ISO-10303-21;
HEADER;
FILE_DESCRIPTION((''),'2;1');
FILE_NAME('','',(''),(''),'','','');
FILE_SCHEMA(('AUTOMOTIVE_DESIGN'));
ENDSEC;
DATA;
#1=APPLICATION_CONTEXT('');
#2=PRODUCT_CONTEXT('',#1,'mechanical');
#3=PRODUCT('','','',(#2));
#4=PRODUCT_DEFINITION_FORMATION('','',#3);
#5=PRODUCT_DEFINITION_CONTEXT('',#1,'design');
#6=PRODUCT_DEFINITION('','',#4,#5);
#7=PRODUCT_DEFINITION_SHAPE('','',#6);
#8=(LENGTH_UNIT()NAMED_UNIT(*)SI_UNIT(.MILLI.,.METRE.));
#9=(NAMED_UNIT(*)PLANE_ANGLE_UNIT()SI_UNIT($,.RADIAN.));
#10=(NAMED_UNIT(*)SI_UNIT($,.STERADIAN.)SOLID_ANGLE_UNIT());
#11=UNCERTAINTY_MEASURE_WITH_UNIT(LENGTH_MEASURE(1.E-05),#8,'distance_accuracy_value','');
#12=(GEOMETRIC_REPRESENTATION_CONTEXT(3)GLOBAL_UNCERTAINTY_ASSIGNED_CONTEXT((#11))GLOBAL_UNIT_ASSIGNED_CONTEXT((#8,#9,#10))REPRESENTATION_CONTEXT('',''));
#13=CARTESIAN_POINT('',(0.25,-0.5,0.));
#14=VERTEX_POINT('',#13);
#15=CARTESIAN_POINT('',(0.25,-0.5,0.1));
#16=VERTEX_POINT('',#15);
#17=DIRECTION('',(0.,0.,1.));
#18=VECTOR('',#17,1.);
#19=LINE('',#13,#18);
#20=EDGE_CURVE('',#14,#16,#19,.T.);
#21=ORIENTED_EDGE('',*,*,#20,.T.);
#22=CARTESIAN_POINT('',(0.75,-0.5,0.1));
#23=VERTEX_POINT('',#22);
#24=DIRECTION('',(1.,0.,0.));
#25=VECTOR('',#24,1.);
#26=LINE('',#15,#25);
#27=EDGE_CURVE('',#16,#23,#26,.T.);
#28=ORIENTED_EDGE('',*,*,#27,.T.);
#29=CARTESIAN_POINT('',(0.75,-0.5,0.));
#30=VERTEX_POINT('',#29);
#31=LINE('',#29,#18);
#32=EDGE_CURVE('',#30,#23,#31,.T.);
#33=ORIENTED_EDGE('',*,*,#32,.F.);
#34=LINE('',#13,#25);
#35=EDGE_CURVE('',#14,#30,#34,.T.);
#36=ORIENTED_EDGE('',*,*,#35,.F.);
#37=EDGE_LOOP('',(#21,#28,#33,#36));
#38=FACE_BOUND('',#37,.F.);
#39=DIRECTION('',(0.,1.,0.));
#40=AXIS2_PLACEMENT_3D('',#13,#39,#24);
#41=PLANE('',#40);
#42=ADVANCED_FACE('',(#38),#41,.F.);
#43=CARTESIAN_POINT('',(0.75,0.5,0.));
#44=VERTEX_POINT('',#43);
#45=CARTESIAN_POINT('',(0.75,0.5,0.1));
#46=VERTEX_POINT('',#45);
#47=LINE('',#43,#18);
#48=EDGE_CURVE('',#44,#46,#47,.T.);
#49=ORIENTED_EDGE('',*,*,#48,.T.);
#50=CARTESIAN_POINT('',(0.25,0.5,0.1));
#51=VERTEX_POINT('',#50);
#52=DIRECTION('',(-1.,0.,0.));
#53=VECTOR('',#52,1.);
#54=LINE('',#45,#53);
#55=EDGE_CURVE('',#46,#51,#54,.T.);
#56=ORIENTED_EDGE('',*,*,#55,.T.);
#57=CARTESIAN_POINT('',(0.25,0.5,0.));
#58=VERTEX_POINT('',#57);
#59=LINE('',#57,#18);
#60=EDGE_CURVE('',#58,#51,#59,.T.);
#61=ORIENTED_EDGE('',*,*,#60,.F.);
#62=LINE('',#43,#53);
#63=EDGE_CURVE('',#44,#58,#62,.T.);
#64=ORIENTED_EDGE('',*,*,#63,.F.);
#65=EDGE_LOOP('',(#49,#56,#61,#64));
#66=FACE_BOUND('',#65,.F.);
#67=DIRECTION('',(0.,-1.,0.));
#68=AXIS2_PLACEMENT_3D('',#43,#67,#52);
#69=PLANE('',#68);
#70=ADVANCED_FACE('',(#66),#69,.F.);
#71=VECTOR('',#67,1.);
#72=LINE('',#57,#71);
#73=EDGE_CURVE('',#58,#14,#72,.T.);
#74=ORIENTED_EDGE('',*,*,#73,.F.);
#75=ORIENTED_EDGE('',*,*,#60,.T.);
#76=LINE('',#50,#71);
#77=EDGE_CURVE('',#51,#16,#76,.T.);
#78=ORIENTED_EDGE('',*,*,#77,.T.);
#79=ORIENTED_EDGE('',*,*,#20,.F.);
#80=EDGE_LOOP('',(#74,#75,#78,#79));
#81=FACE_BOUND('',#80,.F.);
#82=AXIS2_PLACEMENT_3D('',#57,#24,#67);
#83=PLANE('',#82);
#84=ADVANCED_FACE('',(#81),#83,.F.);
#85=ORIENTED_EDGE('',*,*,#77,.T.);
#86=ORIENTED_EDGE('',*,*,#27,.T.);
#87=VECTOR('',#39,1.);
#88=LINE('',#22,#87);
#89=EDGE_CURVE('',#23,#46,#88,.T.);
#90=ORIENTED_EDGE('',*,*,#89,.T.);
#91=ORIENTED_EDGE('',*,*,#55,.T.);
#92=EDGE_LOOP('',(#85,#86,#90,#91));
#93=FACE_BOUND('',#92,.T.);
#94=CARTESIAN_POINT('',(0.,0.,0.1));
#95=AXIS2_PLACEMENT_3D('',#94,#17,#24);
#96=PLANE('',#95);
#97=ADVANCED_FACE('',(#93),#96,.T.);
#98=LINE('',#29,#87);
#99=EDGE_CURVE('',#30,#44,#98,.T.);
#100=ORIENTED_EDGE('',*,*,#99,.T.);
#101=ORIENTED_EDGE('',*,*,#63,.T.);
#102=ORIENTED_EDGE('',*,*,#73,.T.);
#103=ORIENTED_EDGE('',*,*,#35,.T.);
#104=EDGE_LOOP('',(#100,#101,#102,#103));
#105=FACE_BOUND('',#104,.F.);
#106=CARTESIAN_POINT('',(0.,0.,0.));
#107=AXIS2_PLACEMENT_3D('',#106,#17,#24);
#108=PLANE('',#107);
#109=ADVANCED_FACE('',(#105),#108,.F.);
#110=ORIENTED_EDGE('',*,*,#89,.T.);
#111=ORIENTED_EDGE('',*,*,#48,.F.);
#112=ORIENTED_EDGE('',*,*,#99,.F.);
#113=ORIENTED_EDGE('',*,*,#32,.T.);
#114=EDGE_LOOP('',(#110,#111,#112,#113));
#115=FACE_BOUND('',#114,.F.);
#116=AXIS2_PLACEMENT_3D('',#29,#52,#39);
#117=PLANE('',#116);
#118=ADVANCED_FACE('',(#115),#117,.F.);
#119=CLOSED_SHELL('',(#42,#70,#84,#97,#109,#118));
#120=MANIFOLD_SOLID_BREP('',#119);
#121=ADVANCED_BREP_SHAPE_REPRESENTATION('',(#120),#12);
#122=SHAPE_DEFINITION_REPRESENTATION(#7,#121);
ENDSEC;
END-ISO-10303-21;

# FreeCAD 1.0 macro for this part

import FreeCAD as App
import Part
import Sketcher
from FreeCAD import Vector
Q = App.Units.Quantity

doc = App.newDocument("Part")
body = doc.addObject("PartDesign::Body", "Body")

sketch1 = body.newObject("Sketcher::SketchObject", "Sketch")
sketch1.AttachmentSupport = (doc.getObject("XY_Plane"), [""])
sketch1.MapMode = "FlatFace"
sketch1.addGeometry(Part.LineSegment(Vector(0.2, 0.5, 0), Vector(0.2, -0.5, 0)), False)
sketch1.addGeometry(Part.LineSegment(Vector(0.2, -0.5, 0), Vector(0.8, -0.5, 0)), False)
sketch1.addGeometry(Part.LineSegment(Vector(0.8, -0.5, 0), Vector(0.8, 0.5, 0)), False)
sketch1.addGeometry(Part.LineSegment(Vector(0.8, 0.5, 0), Vector(0.2, 0.5, 0)), False)
sketch1.addConstraint(Sketcher.Constraint("Coincident", 0, 2, 1, 1))
sketch1.addConstraint(Sketcher.Constraint("Coincident", 1, 2, 2, 1))
sketch1.addConstraint(Sketcher.Constraint("Coincident", 2, 2, 3, 1))
sketch1.addConstraint(Sketcher.Constraint("Coincident", 3, 2, 0, 1))
sketch1.addConstraint(Sketcher.Constraint("Vertical", 0))
sketch1.addConstraint(Sketcher.Constraint("Horizontal", 1))
sketch1.addConstraint(Sketcher.Constraint("Vertical", 2))
sketch1.addConstraint(Sketcher.Constraint("Horizontal", 3))
sketch1.addConstraint(Sketcher.Constraint("DistanceY", 0, 2, 0, 1, Q("1 mm")))
sketch1.addConstraint(Sketcher.Constraint("DistanceX", 1, 1, 1, 2, Q("0.5 mm")))
sketch1.addConstraint(Sketcher.Constraint("DistanceY", 0, 2, -1, 1, Q("0.5 mm")))
sketch1.addConstraint(Sketcher.Constraint("DistanceX", -1, 1, 0, 2, Q("0.25 mm")))
pad1 = body.newObject("PartDesign::Pad", "Pad")
pad1.Profile = sketch1
pad1.Length = 0.1

doc.recompute()
